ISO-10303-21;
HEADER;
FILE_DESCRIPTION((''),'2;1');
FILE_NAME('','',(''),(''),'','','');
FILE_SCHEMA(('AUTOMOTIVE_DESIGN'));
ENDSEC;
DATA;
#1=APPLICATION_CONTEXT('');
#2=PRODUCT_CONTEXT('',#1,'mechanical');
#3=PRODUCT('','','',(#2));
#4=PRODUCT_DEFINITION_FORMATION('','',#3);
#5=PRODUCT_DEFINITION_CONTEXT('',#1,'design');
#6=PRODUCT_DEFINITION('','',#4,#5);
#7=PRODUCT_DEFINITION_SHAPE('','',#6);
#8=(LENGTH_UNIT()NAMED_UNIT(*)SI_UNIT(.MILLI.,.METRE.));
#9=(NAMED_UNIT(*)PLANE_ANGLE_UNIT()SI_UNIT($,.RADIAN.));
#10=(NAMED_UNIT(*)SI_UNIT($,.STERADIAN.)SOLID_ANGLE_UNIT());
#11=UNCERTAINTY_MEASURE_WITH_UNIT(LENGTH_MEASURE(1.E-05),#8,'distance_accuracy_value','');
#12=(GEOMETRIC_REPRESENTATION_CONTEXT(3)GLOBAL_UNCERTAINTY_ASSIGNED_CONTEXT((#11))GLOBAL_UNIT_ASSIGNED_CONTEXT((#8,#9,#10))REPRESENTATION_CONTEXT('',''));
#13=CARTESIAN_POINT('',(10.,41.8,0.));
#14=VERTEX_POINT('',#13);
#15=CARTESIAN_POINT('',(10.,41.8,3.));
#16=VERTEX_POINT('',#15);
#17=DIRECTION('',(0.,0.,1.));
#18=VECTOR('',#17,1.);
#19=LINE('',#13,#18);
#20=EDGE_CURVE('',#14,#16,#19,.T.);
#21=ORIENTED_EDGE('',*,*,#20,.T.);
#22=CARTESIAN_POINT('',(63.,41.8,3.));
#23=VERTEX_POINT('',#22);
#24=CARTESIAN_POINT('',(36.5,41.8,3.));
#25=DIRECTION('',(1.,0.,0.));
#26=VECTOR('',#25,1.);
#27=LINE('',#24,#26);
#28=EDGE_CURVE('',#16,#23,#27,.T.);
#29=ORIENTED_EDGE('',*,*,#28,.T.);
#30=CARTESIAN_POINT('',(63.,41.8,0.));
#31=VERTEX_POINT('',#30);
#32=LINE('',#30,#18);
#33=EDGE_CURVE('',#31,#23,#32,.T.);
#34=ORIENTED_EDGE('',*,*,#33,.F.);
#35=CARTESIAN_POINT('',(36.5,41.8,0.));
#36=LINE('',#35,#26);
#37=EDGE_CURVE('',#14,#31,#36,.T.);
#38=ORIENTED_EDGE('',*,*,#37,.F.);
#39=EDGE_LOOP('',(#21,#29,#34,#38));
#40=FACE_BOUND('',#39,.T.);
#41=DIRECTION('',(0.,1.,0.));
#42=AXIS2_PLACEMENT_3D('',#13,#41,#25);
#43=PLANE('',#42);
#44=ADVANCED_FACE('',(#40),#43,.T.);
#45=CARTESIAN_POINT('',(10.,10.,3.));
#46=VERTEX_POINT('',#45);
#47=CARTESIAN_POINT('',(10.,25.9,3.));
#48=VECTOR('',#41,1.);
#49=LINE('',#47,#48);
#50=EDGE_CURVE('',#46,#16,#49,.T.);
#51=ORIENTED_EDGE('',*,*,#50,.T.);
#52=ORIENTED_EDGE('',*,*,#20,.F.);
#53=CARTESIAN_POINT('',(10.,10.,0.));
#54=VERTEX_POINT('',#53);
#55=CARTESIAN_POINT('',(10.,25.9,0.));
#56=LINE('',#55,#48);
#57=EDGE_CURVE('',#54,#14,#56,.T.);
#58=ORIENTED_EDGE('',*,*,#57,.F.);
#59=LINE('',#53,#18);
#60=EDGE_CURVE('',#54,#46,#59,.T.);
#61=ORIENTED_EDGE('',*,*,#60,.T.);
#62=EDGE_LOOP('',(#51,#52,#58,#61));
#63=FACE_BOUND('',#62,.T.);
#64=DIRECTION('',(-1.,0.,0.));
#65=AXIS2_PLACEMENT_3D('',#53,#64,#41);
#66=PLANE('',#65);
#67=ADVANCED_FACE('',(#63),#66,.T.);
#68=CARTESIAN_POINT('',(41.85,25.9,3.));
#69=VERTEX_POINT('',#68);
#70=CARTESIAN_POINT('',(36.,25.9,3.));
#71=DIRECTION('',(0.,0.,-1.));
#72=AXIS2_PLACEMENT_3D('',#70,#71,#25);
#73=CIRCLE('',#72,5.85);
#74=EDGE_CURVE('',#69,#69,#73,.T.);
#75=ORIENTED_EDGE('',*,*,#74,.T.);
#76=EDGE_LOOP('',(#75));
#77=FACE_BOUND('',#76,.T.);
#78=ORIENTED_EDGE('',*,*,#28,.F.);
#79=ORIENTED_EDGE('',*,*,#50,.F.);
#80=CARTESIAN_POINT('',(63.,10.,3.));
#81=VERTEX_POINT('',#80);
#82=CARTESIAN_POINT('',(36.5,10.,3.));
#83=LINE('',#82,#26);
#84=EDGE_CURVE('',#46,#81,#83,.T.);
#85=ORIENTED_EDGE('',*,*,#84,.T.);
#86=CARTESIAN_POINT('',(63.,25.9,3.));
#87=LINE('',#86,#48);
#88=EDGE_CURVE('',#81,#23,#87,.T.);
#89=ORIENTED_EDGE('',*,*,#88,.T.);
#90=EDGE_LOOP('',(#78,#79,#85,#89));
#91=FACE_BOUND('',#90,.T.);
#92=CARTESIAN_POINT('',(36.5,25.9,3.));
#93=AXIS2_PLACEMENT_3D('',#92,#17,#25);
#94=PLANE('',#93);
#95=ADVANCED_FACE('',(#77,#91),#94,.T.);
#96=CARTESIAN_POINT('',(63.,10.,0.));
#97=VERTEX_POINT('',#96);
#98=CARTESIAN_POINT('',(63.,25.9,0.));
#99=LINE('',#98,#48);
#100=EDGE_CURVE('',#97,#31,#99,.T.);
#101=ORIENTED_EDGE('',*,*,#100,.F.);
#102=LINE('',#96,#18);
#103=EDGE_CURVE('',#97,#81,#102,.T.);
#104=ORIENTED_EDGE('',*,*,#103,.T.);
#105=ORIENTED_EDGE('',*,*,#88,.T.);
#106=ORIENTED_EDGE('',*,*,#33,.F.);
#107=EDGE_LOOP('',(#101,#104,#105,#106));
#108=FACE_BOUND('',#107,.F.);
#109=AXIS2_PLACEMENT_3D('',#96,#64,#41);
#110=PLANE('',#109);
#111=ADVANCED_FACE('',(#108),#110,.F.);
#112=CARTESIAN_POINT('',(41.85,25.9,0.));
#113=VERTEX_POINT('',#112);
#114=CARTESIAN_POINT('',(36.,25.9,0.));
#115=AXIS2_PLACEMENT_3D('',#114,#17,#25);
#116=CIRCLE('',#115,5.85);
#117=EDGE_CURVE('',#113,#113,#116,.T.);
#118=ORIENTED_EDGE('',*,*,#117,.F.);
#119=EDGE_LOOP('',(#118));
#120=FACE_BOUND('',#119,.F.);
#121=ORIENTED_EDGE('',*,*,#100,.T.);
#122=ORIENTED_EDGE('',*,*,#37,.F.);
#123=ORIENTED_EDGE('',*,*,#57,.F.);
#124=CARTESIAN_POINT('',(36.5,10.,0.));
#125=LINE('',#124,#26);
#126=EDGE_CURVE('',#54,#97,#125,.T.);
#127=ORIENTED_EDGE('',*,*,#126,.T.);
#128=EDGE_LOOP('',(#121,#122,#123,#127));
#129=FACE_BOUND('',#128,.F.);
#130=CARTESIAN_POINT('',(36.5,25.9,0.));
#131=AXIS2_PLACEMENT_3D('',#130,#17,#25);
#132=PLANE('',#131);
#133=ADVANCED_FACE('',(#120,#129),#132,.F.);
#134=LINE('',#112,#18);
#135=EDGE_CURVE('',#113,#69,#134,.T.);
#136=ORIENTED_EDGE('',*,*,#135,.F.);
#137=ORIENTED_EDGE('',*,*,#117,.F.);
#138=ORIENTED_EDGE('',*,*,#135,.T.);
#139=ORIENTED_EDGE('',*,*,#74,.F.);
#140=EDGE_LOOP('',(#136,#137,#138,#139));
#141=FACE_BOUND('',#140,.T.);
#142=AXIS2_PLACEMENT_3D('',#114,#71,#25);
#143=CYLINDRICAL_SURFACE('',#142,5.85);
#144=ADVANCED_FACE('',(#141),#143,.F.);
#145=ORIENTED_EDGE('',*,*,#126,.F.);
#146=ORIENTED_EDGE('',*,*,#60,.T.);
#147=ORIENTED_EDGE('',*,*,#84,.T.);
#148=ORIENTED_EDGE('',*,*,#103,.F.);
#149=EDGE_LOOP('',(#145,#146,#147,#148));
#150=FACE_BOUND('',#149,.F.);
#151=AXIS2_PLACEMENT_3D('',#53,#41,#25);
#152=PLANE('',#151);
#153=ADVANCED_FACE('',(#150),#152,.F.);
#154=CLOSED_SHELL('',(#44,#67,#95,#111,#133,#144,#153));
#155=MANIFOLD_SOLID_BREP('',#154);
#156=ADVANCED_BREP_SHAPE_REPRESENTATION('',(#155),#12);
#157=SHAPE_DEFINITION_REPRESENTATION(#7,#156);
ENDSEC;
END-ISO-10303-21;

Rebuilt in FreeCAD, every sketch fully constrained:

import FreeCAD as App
import Part
import Sketcher
from FreeCAD import Vector
Q = App.Units.Quantity


def add_polygon(sketch, points):
    """Adds a closed chain of lines whose ends are joined by coincident constraints."""
    first, n = sketch.GeometryCount, len(points)
    for a, b in zip(points, points[1:] + points[:1]):
        sketch.addGeometry(Part.LineSegment(App.Vector(*a, 0), App.Vector(*b, 0)), False)
    for i in range(n):
        sketch.addConstraint(Sketcher.Constraint("Coincident", first + i, 2, first + (i + 1) % n, 1))

doc = App.newDocument("Part")
params = doc.addObject("Spreadsheet::Sheet", "Params")
for row, (alias, value) in enumerate([
    ("sketch1_width", "53 mm"),
    ("sketch1_height", "31.8 mm"),
    ("pad1_length", "3 mm"),
    ("sketch2_diameter", "11.7 mm"),
], start=1):
    params.set(f"A{row}", alias)
    params.set(f"B{row}", "=" + value)
    params.setAlias(f"B{row}", alias)

body = doc.addObject("PartDesign::Body", "Body")

# Sketch on XY plane
sketch1 = body.newObject("Sketcher::SketchObject", "Sketch")
sketch1.AttachmentSupport = (doc.getObject("XY_Plane"), [""])
sketch1.MapMode = "FlatFace"
add_polygon(sketch1, [(10, 42), (10, 10), (63, 10), (63, 42)])  # lines 0-3
sketch1.addConstraint([
    Sketcher.Constraint("Vertical", 0),
    Sketcher.Constraint("Horizontal", 1),
    Sketcher.Constraint("Vertical", 2),
    Sketcher.Constraint("Horizontal", 3),
    Sketcher.Constraint("DistanceX", 1, 1, 1, 2, Q("53 mm")),
    Sketcher.Constraint("DistanceY", 0, 2, 0, 1, Q("31.8 mm")),
    Sketcher.Constraint("DistanceX", -1, 1, 0, 2, Q("10 mm")),
    Sketcher.Constraint("DistanceY", -1, 1, 0, 2, Q("10 mm")),
])
sketch1.setExpression("Constraints[8]", "Params.sketch1_width")
sketch1.setExpression("Constraints[9]", "Params.sketch1_height")
pad1 = body.newObject("PartDesign::Pad", "Pad")
pad1.Profile = sketch1
pad1.setExpression("Length", "Params.pad1_length")

# Sketch on XY plane
sketch2 = body.newObject("Sketcher::SketchObject", "Sketch001")
sketch2.AttachmentSupport = (doc.getObject("XY_Plane"), [""])
sketch2.MapMode = "FlatFace"
sketch2.addGeometry(Part.Circle(Vector(36, 26, 0), Vector(0, 0, 1), 6), False)
sketch2.addConstraint([
    Sketcher.Constraint("Diameter", 0, Q("11.7 mm")),
    Sketcher.Constraint("DistanceX", -1, 1, 0, 3, Q("36 mm")),
    Sketcher.Constraint("DistanceY", -1, 1, 0, 3, Q("25.9 mm")),
])
sketch2.setExpression("Constraints[0]", "Params.sketch2_diameter")
pocket1 = body.newObject("PartDesign::Pocket", "Pocket")
pocket1.Profile = sketch2
pocket1.Type = "ThroughAll"
pocket1.Reversed = True

doc.recompute()
